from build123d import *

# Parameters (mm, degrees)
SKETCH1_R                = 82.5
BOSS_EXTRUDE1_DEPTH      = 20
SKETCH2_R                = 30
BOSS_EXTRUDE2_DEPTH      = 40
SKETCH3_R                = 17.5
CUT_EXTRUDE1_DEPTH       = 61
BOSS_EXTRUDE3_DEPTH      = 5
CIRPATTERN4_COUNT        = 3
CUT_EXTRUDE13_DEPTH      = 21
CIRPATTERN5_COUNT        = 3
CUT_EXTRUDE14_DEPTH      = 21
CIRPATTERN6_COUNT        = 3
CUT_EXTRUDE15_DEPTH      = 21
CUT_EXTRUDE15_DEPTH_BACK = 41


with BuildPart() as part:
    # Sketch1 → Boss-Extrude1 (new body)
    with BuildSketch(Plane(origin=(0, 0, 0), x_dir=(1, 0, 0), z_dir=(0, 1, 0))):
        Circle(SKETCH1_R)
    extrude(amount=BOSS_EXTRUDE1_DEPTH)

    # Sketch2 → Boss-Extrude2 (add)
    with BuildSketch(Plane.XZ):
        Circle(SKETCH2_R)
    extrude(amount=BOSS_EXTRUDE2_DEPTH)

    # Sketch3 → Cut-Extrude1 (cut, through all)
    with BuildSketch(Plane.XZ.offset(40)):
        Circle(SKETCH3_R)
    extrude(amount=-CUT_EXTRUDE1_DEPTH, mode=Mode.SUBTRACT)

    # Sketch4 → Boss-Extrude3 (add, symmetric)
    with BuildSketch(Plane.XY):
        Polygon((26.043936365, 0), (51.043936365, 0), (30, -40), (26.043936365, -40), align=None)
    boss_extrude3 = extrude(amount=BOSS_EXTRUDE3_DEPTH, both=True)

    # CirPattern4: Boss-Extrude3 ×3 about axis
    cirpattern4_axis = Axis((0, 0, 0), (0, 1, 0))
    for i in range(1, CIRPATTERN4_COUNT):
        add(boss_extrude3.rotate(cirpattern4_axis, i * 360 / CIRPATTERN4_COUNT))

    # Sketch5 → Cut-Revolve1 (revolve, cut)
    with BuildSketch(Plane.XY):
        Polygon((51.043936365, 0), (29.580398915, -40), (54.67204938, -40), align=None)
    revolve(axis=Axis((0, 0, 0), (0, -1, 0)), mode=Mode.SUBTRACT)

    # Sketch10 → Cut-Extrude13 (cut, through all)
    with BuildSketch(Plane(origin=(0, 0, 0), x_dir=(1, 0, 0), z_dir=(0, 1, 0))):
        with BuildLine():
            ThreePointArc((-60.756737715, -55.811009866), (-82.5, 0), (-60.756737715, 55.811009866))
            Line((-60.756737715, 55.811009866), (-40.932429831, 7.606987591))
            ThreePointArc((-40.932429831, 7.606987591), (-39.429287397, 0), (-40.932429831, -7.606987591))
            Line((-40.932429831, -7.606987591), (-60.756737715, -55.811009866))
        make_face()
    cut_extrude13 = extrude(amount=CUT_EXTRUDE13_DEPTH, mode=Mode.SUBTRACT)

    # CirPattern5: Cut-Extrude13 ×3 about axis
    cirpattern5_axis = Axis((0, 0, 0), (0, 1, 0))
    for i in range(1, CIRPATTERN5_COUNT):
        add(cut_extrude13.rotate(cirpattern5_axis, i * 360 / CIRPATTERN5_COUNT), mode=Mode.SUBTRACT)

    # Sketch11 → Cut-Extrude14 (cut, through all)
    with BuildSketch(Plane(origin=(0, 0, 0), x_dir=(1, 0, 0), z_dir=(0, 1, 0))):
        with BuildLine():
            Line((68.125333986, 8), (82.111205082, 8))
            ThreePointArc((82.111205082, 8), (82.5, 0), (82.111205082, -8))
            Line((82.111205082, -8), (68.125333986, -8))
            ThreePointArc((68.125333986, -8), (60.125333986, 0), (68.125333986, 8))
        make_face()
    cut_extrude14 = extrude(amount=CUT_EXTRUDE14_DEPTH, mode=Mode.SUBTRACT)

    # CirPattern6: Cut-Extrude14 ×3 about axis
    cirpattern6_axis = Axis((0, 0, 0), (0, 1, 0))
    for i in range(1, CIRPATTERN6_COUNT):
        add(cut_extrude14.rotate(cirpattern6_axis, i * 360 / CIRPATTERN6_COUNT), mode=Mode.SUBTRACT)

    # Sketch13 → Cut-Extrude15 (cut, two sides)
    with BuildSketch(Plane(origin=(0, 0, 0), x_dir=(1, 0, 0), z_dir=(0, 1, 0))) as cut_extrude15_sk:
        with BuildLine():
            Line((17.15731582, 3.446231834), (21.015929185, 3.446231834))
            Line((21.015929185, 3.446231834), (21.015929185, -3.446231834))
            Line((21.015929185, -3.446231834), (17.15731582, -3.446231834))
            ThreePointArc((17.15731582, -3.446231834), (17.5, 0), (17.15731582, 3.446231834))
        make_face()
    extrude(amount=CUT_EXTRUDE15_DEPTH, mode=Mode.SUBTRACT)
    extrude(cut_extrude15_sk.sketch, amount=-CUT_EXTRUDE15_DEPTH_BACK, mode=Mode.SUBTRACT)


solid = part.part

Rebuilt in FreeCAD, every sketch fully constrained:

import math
import FreeCAD as App
import Part
import Sketcher

V = App.Vector


def add_polygon(sketch, points):
    """Adds a closed chain of lines whose ends are joined by coincident constraints."""
    first, n = sketch.GeometryCount, len(points)
    for a, b in zip(points, points[1:] + points[:1]):
        sketch.addGeometry(Part.LineSegment(App.Vector(*a, 0), App.Vector(*b, 0)), False)
    for i in range(n):
        sketch.addConstraint(Sketcher.Constraint("Coincident", first + i, 2, first + (i + 1) % n, 1))

doc = App.newDocument("Part")
body = doc.addObject("PartDesign::Body", "Body")

sketch1 = doc.addObject("Sketcher::SketchObject", "Sketch")
body.addObject(sketch1)
sketch1.AttachmentSupport = (doc.XZ_Plane, [""])
sketch1.MapMode = "FlatFace"
sketch1.addGeometry(Part.Circle(V(0, 0, 0), V(0, 0, 1), 82), False)
sketch1.addConstraint([
    Sketcher.Constraint("Coincident", 0, 3, -1, 1),
    Sketcher.Constraint("Diameter", 0, 165.0),
])
pad1 = doc.addObject("PartDesign::Pad", "Pad")
body.addObject(pad1)
pad1.Profile = sketch1
pad1.Length = 20
pad1.Reversed = True

sketch2 = doc.addObject("Sketcher::SketchObject", "Sketch001")
body.addObject(sketch2)
sketch2.AttachmentSupport = (doc.XZ_Plane, [""])
sketch2.MapMode = "FlatFace"
sketch2.addGeometry(Part.Circle(V(0, 0, 0), V(0, 0, 1), 30), False)
sketch2.addConstraint([
    Sketcher.Constraint("Coincident", 0, 3, -1, 1),
    Sketcher.Constraint("Diameter", 0, 60.0),
])
pad2 = doc.addObject("PartDesign::Pad", "Pad001")
body.addObject(pad2)
pad2.Profile = sketch2
pad2.Length = 40

sketch3 = doc.addObject("Sketcher::SketchObject", "Sketch002")
body.addObject(sketch3)
sketch3.AttachmentSupport = (doc.XZ_Plane, [""])
sketch3.MapMode = "FlatFace"
sketch3.AttachmentOffset = App.Placement(V(0, 0, 40), App.Rotation())
sketch3.addGeometry(Part.Circle(V(0, 0, 0), V(0, 0, 1), 18), False)
sketch3.addConstraint([
    Sketcher.Constraint("Coincident", 0, 3, -1, 1),
    Sketcher.Constraint("Diameter", 0, 35.0),
])
pocket1 = doc.addObject("PartDesign::Pocket", "Pocket")
body.addObject(pocket1)
pocket1.Profile = sketch3
pocket1.Type = "ThroughAll"

sketch4 = doc.addObject("Sketcher::SketchObject", "Sketch003")
body.addObject(sketch4)
sketch4.AttachmentSupport = (doc.XY_Plane, [""])
sketch4.MapMode = "FlatFace"
add_polygon(sketch4, [(51, 0), (26, 0), (26, -40), (30, -40)])
sketch4.addConstraint([
    Sketcher.Constraint("Horizontal", 0),
    Sketcher.Constraint("Vertical", 1),
    Sketcher.Constraint("Horizontal", 2),
    Sketcher.Constraint("PointOnObject", 0, 2, -1),
    Sketcher.Constraint("DistanceX", 0, 2, 0, 1, 25.0),
    Sketcher.Constraint("DistanceY", 1, 2, 1, 1, 40.0),
    Sketcher.Constraint("DistanceX", -1, 1, 2, 2, 30.0),
    Sketcher.Constraint("DistanceX", 2, 1, 2, 2, 3.956064),
])
pad3 = doc.addObject("PartDesign::Pad", "Pad002")
body.addObject(pad3)
pad3.Profile = sketch4
pad3.Length = 10
pad3.Midplane = True
doc.recompute()

polarpattern = doc.addObject("PartDesign::PolarPattern", "PolarPattern")
body.addObject(polarpattern)
polarpattern.Originals = [pad3]
polarpattern.Axis = (doc.Y_Axis, [""])
polarpattern.Angle = 360
polarpattern.Occurrences = 3
body.Tip = polarpattern

sketch5 = doc.addObject("Sketcher::SketchObject", "Sketch004")
body.addObject(sketch5)
sketch5.AttachmentSupport = (doc.XY_Plane, [""])
sketch5.MapMode = "FlatFace"
add_polygon(sketch5, [(51, 0), (30, -40), (55, -40)])
sketch5.addConstraint([
    Sketcher.Constraint("Horizontal", 1),
    Sketcher.Constraint("PointOnObject", 2, 2, -1),
    Sketcher.Constraint("DistanceY", 0, 2, -1, 1, 40.0),
    Sketcher.Constraint("DistanceX", 1, 1, 1, 2, 25.09165),
    Sketcher.Constraint("DistanceX", -1, 1, 0, 2, 29.580399),
    Sketcher.Constraint("Distance", 0, 45.394751),
])
groove = doc.addObject("PartDesign::Groove", "Groove")
body.addObject(groove)
groove.Profile = sketch5
groove.ReferenceAxis = (sketch5, ["V_Axis"])
groove.Angle = 360

sketch6 = doc.addObject("Sketcher::SketchObject", "Sketch005")
body.addObject(sketch6)
sketch6.AttachmentSupport = (doc.XZ_Plane, [""])
sketch6.MapMode = "FlatFace"
sketch6.addGeometry([
    Part.ArcOfCircle(Part.Circle(V(0, 0, 0), V(0, 0, 1), 83), math.radians(137), math.radians(223)),
    Part.LineSegment(V(-61, 56, 0), V(-41, 8, 0)),
    Part.ArcOfCircle(Part.Circle(V(-59, 0, 0), V(0, 0, 1), 20), math.radians(-22), math.radians(22)),
    Part.LineSegment(V(-41, -8, 0), V(-61, -56, 0)),
], False)
sketch6.addConstraint([
    Sketcher.Constraint("Coincident", 0, 1, 1, 1),
    Sketcher.Constraint("Tangent", 1, 2, 2, 2),
    Sketcher.Constraint("Tangent", 2, 1, 3, 1),
    Sketcher.Constraint("Coincident", 3, 2, 0, 2),
    Sketcher.Constraint("Coincident", 0, 3, -1, 1),
    Sketcher.Constraint("Symmetric", 1, 2, 2, 1, -1),
    Sketcher.Constraint("Radius", 2, 20.0),
    Sketcher.Constraint("Radius", 0, 82.5),
    Sketcher.Constraint("Distance", 1, 52.12131),
    Sketcher.Constraint("DistanceX", 1, 2, -1, 1, 40.93243),
])
pocket2 = doc.addObject("PartDesign::Pocket", "Pocket001")
body.addObject(pocket2)
pocket2.Profile = sketch6
pocket2.Type = "ThroughAll"
doc.recompute()

polarpattern2 = doc.addObject("PartDesign::PolarPattern", "PolarPattern001")
body.addObject(polarpattern2)
polarpattern2.Originals = [pocket2]
polarpattern2.Axis = (doc.Y_Axis, [""])
polarpattern2.Angle = 360
polarpattern2.Occurrences = 3
body.Tip = polarpattern2

sketch7 = doc.addObject("Sketcher::SketchObject", "Sketch006")
body.addObject(sketch7)
sketch7.AttachmentSupport = (doc.XZ_Plane, [""])
sketch7.MapMode = "FlatFace"
sketch7.addGeometry([
    Part.LineSegment(V(82, -8, 0), V(68, -8, 0)),
    Part.ArcOfCircle(Part.Circle(V(68, 0, 0), V(0, 0, 1), 8), math.radians(90), math.radians(270)),
    Part.LineSegment(V(68, 8, 0), V(82, 8, 0)),
    Part.ArcOfCircle(Part.Circle(V(0, 0, 0), V(0, 0, 1), 83), math.radians(-5.56), math.radians(5.56)),
], False)
sketch7.addConstraint([
    Sketcher.Constraint("Tangent", 0, 2, 1, 2),
    Sketcher.Constraint("Tangent", 1, 1, 2, 1),
    Sketcher.Constraint("Coincident", 2, 2, 3, 2),
    Sketcher.Constraint("Coincident", 3, 1, 0, 1),
    Sketcher.Constraint("Horizontal", 0),
    Sketcher.Constraint("Horizontal", 2),
    Sketcher.Constraint("Coincident", 3, 3, -1, 1),
    Sketcher.Constraint("PointOnObject", 1, 3, -1),
    Sketcher.Constraint("Radius", 1, 8.0),
    Sketcher.Constraint("Radius", 3, 82.5),
    Sketcher.Constraint("DistanceX", 0, 2, 0, 1, 13.985871),
])
pocket3 = doc.addObject("PartDesign::Pocket", "Pocket002")
body.addObject(pocket3)
pocket3.Profile = sketch7
pocket3.Type = "ThroughAll"
doc.recompute()

polarpattern3 = doc.addObject("PartDesign::PolarPattern", "PolarPattern002")
body.addObject(polarpattern3)
polarpattern3.Originals = [pocket3]
polarpattern3.Axis = (doc.Y_Axis, [""])
polarpattern3.Angle = 360
polarpattern3.Occurrences = 3
body.Tip = polarpattern3

sketch8 = doc.addObject("Sketcher::SketchObject", "Sketch007")
body.addObject(sketch8)
sketch8.AttachmentSupport = (doc.XZ_Plane, [""])
sketch8.MapMode = "FlatFace"
sketch8.addGeometry([
    Part.LineSegment(V(21, -3.4, 0), V(17.2, -3.4, 0)),
    Part.ArcOfCircle(Part.Circle(V(0, 0, 0), V(0, 0, 1), 17.5), math.radians(-11), math.radians(11)),
    Part.LineSegment(V(17.2, 3.4, 0), V(21, 3.4, 0)),
    Part.LineSegment(V(21, 3.4, 0), V(21, -3.4, 0)),
], False)
sketch8.addConstraint([
    Sketcher.Constraint("Coincident", 0, 2, 1, 1),
    Sketcher.Constraint("Coincident", 1, 2, 2, 1),
    Sketcher.Constraint("Coincident", 2, 2, 3, 1),
    Sketcher.Constraint("Coincident", 3, 2, 0, 1),
    Sketcher.Constraint("Horizontal", 0),
    Sketcher.Constraint("Horizontal", 2),
    Sketcher.Constraint("Vertical", 3),
    Sketcher.Constraint("Coincident", 1, 3, -1, 1),
    Sketcher.Constraint("Vertical", 0, 2, 1, 2),
    Sketcher.Constraint("Radius", 1, 17.5),
    Sketcher.Constraint("DistanceX", 0, 2, 0, 1, 3.858613),
    Sketcher.Constraint("DistanceY", 3, 2, 3, 1, 6.892464),
])
pocket4 = doc.addObject("PartDesign::Pocket", "Pocket003")
body.addObject(pocket4)
pocket4.Profile = sketch8
pocket4.Type = "ThroughAll"
pocket4.Midplane = True

doc.recompute()
